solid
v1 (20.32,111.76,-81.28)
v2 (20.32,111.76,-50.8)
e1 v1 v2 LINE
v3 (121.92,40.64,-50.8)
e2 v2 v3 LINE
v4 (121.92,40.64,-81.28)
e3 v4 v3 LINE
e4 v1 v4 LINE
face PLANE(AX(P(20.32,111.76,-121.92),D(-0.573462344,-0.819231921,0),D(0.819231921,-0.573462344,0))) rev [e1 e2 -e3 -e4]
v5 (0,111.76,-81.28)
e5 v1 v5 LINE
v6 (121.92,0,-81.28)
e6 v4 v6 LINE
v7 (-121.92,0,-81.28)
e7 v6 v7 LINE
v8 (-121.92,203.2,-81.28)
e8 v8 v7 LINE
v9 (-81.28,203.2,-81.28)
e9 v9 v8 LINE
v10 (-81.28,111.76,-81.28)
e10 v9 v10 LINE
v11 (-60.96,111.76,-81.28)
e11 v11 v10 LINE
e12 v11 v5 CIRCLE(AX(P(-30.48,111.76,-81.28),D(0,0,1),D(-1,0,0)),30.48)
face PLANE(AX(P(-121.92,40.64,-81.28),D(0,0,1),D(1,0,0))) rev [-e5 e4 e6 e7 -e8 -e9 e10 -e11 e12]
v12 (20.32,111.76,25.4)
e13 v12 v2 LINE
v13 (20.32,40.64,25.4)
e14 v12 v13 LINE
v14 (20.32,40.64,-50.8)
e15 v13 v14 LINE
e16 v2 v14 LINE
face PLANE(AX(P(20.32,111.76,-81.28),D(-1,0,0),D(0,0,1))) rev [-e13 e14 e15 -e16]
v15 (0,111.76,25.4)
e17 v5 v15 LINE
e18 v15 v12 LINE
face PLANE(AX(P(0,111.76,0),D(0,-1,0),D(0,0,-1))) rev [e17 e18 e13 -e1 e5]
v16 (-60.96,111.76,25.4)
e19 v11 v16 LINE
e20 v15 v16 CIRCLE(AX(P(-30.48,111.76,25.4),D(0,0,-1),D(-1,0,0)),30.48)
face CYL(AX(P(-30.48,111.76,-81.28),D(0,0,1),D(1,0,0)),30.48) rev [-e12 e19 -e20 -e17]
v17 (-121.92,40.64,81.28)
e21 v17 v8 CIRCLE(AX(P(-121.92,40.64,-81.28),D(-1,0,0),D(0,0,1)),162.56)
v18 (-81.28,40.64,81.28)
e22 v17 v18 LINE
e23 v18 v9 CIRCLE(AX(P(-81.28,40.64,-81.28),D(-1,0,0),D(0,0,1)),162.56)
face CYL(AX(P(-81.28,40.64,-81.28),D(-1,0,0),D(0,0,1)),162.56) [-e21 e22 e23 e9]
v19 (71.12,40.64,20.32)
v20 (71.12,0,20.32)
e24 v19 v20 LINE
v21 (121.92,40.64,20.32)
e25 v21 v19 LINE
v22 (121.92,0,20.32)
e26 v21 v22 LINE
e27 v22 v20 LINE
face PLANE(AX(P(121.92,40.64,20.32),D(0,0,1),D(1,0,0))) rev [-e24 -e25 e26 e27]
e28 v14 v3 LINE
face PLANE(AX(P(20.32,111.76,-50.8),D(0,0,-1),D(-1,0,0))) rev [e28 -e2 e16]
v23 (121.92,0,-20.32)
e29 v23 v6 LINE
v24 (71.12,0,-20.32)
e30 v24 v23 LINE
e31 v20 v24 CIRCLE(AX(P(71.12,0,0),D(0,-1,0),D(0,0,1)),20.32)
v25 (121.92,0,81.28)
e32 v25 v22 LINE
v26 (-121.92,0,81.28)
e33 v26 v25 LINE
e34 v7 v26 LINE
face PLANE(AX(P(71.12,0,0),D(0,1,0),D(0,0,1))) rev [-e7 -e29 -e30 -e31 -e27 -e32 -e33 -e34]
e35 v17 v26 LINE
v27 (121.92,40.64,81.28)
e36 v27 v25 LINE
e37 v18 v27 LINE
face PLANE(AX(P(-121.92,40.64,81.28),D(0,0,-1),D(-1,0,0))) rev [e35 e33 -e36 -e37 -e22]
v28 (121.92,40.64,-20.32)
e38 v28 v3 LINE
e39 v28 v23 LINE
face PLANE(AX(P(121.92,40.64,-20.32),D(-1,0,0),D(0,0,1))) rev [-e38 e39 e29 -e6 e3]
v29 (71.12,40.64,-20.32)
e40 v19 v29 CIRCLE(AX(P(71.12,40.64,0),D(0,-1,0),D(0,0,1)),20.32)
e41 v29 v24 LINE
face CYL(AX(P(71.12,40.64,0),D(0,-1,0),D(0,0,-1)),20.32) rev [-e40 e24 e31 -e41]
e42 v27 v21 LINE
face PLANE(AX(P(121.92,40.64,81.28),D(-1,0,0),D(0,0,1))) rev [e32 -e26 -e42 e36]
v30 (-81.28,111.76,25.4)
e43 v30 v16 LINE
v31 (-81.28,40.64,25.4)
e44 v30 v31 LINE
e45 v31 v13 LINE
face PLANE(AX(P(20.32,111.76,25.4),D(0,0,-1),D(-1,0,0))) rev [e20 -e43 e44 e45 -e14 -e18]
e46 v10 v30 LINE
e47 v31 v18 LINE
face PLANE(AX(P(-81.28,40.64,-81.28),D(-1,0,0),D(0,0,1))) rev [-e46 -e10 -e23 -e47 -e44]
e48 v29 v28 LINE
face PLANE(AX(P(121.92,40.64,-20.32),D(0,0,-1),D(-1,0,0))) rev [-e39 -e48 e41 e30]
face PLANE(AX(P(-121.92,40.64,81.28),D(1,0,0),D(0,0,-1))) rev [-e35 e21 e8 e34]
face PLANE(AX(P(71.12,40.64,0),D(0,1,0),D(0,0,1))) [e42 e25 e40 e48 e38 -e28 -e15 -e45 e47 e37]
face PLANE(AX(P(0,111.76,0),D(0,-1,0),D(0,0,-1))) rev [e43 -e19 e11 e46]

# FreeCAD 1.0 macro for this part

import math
import FreeCAD as App
import Part
import Sketcher
Q = App.Units.Quantity


def add_polygon(sketch, points):
    """Adds a closed chain of lines whose ends are joined by coincident constraints."""
    first, n = sketch.GeometryCount, len(points)
    for a, b in zip(points, points[1:] + points[:1]):
        sketch.addGeometry(Part.LineSegment(App.Vector(*a, 0), App.Vector(*b, 0)), False)
    for i in range(n):
        sketch.addConstraint(Sketcher.Constraint("Coincident", first + i, 2, first + (i + 1) % n, 1))

doc = App.newDocument("Part")
params = doc.addObject("Spreadsheet::Sheet", "Params")
for row, (alias, value) in enumerate([
    ("sketch1_radius", "0.8 in"),
    ("sketch1_width", "2 in"),
    ("sketch1_width2", "9.6 in"),
    ("sketch1_height", "2.4 in"),
    ("pad1_length", "1.6 in"),
    ("sketch2_radius", "6.4 in"),
    ("pad2_length", "1.6 in"),
    ("sketch3_width", "4 in"),
    ("sketch3_height", "4.2 in"),
    ("pad3_length", "2.8 in"),
    ("sketch4_radius", "1.2 in"),
    ("sketch5_width", "4 in"),
    ("sketch5_height", "1.2 in"),
    ("pad4_length", "2.8 in"),
    ("sketch6_width", "4 in"),
    ("sketch6_height", "2.8 in"),
    ("pocket2_length", "2.8 in"),
], start=1):
    params.set(f"A{row}", alias)
    params.set(f"B{row}", "=" + value)
    params.setAlias(f"B{row}", alias)

body = doc.addObject("PartDesign::Body", "Body")

# Sketch on XZ plane
sketch1 = body.newObject("Sketcher::SketchObject", "Sketch")
sketch1.AttachmentSupport = (doc.getObject("XZ_Plane"), [""])
sketch1.MapMode = "FlatFace"
sketch1.addGeometry(Part.LineSegment(App.Vector(-122, 81, 0), App.Vector(122, 81, 0)), False)
sketch1.addGeometry(Part.LineSegment(App.Vector(122, 81, 0), App.Vector(122, 20, 0)), False)
sketch1.addGeometry(Part.LineSegment(App.Vector(122, 20, 0), App.Vector(71, 20, 0)), False)
sketch1.addGeometry(Part.ArcOfCircle(Part.Circle(App.Vector(71, 0, 0), App.Vector(0, 0, 1), 20), math.radians(90), math.radians(270)), False)
sketch1.addGeometry(Part.LineSegment(App.Vector(71, -20, 0), App.Vector(122, -20, 0)), False)
sketch1.addGeometry(Part.LineSegment(App.Vector(122, -20, 0), App.Vector(122, -81, 0)), False)
sketch1.addGeometry(Part.LineSegment(App.Vector(122, -81, 0), App.Vector(-122, -81, 0)), False)
sketch1.addGeometry(Part.LineSegment(App.Vector(-122, -81, 0), App.Vector(-122, 81, 0)), False)
sketch1.addConstraint(Sketcher.Constraint("Coincident", 0, 2, 1, 1))
sketch1.addConstraint(Sketcher.Constraint("Coincident", 1, 2, 2, 1))
sketch1.addConstraint(Sketcher.Constraint("Tangent", 2, 2, 3, 1))
sketch1.addConstraint(Sketcher.Constraint("Tangent", 3, 2, 4, 1))
sketch1.addConstraint(Sketcher.Constraint("Coincident", 4, 2, 5, 1))
sketch1.addConstraint(Sketcher.Constraint("Coincident", 5, 2, 6, 1))
sketch1.addConstraint(Sketcher.Constraint("Coincident", 6, 2, 7, 1))
sketch1.addConstraint(Sketcher.Constraint("Coincident", 7, 2, 0, 1))
sketch1.addConstraint(Sketcher.Constraint("Horizontal", 0))
sketch1.addConstraint(Sketcher.Constraint("Vertical", 1))
sketch1.addConstraint(Sketcher.Constraint("Horizontal", 2))
sketch1.addConstraint(Sketcher.Constraint("Horizontal", 4))
sketch1.addConstraint(Sketcher.Constraint("Vertical", 5))
sketch1.addConstraint(Sketcher.Constraint("Horizontal", 6))
sketch1.addConstraint(Sketcher.Constraint("Vertical", 7))
sketch1.addConstraint(Sketcher.Constraint("Symmetric", 0, 2, 6, 2, -1, 1))
sketch1.addConstraint(Sketcher.Constraint("Symmetric", 1, 2, 4, 2, -1))
sketch1.addConstraint(Sketcher.Constraint("Radius", 3, Q("0.8 in")))
sketch1.addConstraint(Sketcher.Constraint("DistanceX", 2, 2, 2, 1, Q("2 in")))
sketch1.addConstraint(Sketcher.Constraint("DistanceX", 0, 1, 0, 2, Q("9.6 in")))
sketch1.addConstraint(Sketcher.Constraint("DistanceY", 1, 2, 1, 1, Q("2.4 in")))
sketch1.setExpression("Constraints[17]", "Params.sketch1_radius")
sketch1.setExpression("Constraints[18]", "Params.sketch1_width")
sketch1.setExpression("Constraints[19]", "Params.sketch1_width2")
sketch1.setExpression("Constraints[20]", "Params.sketch1_height")
pad1 = body.newObject("PartDesign::Pad", "Pad")
pad1.Profile = sketch1
pad1.setExpression("Length", "Params.pad1_length")
pad1.Reversed = True

# Sketch on YZ plane
sketch2 = body.newObject("Sketcher::SketchObject", "Sketch001")
sketch2.AttachmentSupport = (doc.getObject("YZ_Plane"), [""])
sketch2.MapMode = "FlatFace"
sketch2.AttachmentOffset = App.Placement(App.Vector(0, 0, -4.8 * 25.4), App.Rotation())
sketch2.addGeometry(Part.LineSegment(App.Vector(203, -81, 0), App.Vector(41, -81, 0)), False)
sketch2.addGeometry(Part.LineSegment(App.Vector(41, -81, 0), App.Vector(41, 81, 0)), False)
sketch2.addGeometry(Part.ArcOfCircle(Part.Circle(App.Vector(41, -81, 0), App.Vector(0, 0, 1), 163), math.radians(0), math.radians(90)), False)
sketch2.addConstraint(Sketcher.Constraint("Coincident", 0, 2, 1, 1))
sketch2.addConstraint(Sketcher.Constraint("Coincident", 1, 2, 2, 2))
sketch2.addConstraint(Sketcher.Constraint("Coincident", 2, 1, 0, 1))
sketch2.addConstraint(Sketcher.Constraint("Horizontal", 0))
sketch2.addConstraint(Sketcher.Constraint("Vertical", 1))
sketch2.addConstraint(Sketcher.Constraint("Coincident", 0, 2, 2, 3))
sketch2.addConstraint(Sketcher.Constraint("Radius", 2, Q("6.4 in")))
sketch2.addConstraint(Sketcher.Constraint("DistanceX", -1, 1, 2, 1, Q("8 in")))
sketch2.addConstraint(Sketcher.Constraint("DistanceY", 2, 3, -1, 1, Q("3.2 in")))
sketch2.setExpression("Constraints[6]", "Params.sketch2_radius")
pad2 = body.newObject("PartDesign::Pad", "Pad001")
pad2.Profile = sketch2
pad2.setExpression("Length", "Params.pad2_length")

# Sketch on XZ plane
sketch3 = body.newObject("Sketcher::SketchObject", "Sketch002")
sketch3.AttachmentSupport = (doc.getObject("XZ_Plane"), [""])
sketch3.MapMode = "FlatFace"
sketch3.AttachmentOffset = App.Placement(App.Vector(0, 0, -1.6 * 25.4), App.Rotation())
add_polygon(sketch3, [(-81, -81), (-81, 25), (20, 25), (20, -81)])  # lines 0-3
sketch3.addConstraint(Sketcher.Constraint("Vertical", 0))
sketch3.addConstraint(Sketcher.Constraint("Horizontal", 1))
sketch3.addConstraint(Sketcher.Constraint("Vertical", 2))
sketch3.addConstraint(Sketcher.Constraint("Horizontal", 3))
sketch3.addConstraint(Sketcher.Constraint("DistanceX", 1, 1, 1, 2, Q("4 in")))
sketch3.addConstraint(Sketcher.Constraint("DistanceY", 0, 1, 0, 2, Q("4.2 in")))
sketch3.addConstraint(Sketcher.Constraint("DistanceY", -1, 1, 0, 2, Q("1 in")))
sketch3.addConstraint(Sketcher.Constraint("DistanceX", 0, 2, -1, 1, Q("3.2 in")))
sketch3.setExpression("Constraints[8]", "Params.sketch3_width")
sketch3.setExpression("Constraints[9]", "Params.sketch3_height")
pad3 = body.newObject("PartDesign::Pad", "Pad002")
pad3.Profile = sketch3
pad3.setExpression("Length", "Params.pad3_length")
pad3.Reversed = True

# Sketch on XY plane
sketch4 = body.newObject("Sketcher::SketchObject", "Sketch003")
sketch4.AttachmentSupport = (doc.getObject("XY_Plane"), [""])
sketch4.MapMode = "FlatFace"
sketch4.AttachmentOffset = App.Placement(App.Vector(0, 0, 1 * 25.4), App.Rotation())
sketch4.addGeometry(Part.LineSegment(App.Vector(0, 112, 0), App.Vector(-61, 112, 0)), False)
sketch4.addGeometry(Part.ArcOfCircle(Part.Circle(App.Vector(-30, 112, 0), App.Vector(0, 0, 1), 30), math.radians(180), math.radians(360)), False)
sketch4.addConstraint(Sketcher.Constraint("Coincident", 0, 1, 1, 2))
sketch4.addConstraint(Sketcher.Constraint("Coincident", 1, 1, 0, 2))
sketch4.addConstraint(Sketcher.Constraint("Horizontal", 0))
sketch4.addConstraint(Sketcher.Constraint("PointOnObject", 0, 1, -2))
sketch4.addConstraint(Sketcher.Constraint("Horizontal", 1, 3, 0, 1))
sketch4.addConstraint(Sketcher.Constraint("Radius", 1, Q("1.2 in")))
sketch4.addConstraint(Sketcher.Constraint("DistanceY", -1, 1, 1, 3, Q("4.4 in")))
sketch4.setExpression("Constraints[5]", "Params.sketch4_radius")
pocket1 = body.newObject("PartDesign::Pocket", "Pocket")
pocket1.Profile = sketch4
pocket1.Type = "ThroughAll"
pocket1.Midplane = True

# Sketch on XZ plane
sketch5 = body.newObject("Sketcher::SketchObject", "Sketch004")
sketch5.AttachmentSupport = (doc.getObject("XZ_Plane"), [""])
sketch5.MapMode = "FlatFace"
sketch5.AttachmentOffset = App.Placement(App.Vector(0, 0, -1.6 * 25.4), App.Rotation())
add_polygon(sketch5, [(20, -81), (20, -51), (122, -51), (122, -81)])  # lines 0-3
sketch5.addConstraint(Sketcher.Constraint("Vertical", 0))
sketch5.addConstraint(Sketcher.Constraint("Horizontal", 1))
sketch5.addConstraint(Sketcher.Constraint("Vertical", 2))
sketch5.addConstraint(Sketcher.Constraint("Horizontal", 3))
sketch5.addConstraint(Sketcher.Constraint("DistanceX", 1, 1, 1, 2, Q("4 in")))
sketch5.addConstraint(Sketcher.Constraint("DistanceY", 0, 1, 0, 2, Q("1.2 in")))
sketch5.addConstraint(Sketcher.Constraint("DistanceY", 0, 2, -1, 1, Q("2 in")))
sketch5.addConstraint(Sketcher.Constraint("DistanceX", -1, 1, 0, 2, Q("0.8 in")))
sketch5.setExpression("Constraints[8]", "Params.sketch5_width")
sketch5.setExpression("Constraints[9]", "Params.sketch5_height")
pad4 = body.newObject("PartDesign::Pad", "Pad003")
pad4.Profile = sketch5
pad4.setExpression("Length", "Params.pad4_length")
pad4.Reversed = True

# Sketch on XY plane
sketch6 = body.newObject("Sketcher::SketchObject", "Sketch005")
sketch6.AttachmentSupport = (doc.getObject("XY_Plane"), [""])
sketch6.MapMode = "FlatFace"
sketch6.AttachmentOffset = App.Placement(App.Vector(0, 0, -2 * 25.4), App.Rotation())
add_polygon(sketch6, [(20, 112), (122, 41), (122, 112)])  # lines 0-2
sketch6.addConstraint(Sketcher.Constraint("Vertical", 1))
sketch6.addConstraint(Sketcher.Constraint("Horizontal", 2))
sketch6.addConstraint(Sketcher.Constraint("DistanceX", 2, 2, 2, 1, Q("4 in")))
sketch6.addConstraint(Sketcher.Constraint("DistanceY", 1, 1, 1, 2, Q("2.8 in")))
sketch6.addConstraint(Sketcher.Constraint("DistanceX", -1, 1, 0, 2, Q("4.8 in")))
sketch6.addConstraint(Sketcher.Constraint("DistanceY", -1, 1, 0, 2, Q("1.6 in")))
sketch6.setExpression("Constraints[5]", "Params.sketch6_width")
sketch6.setExpression("Constraints[6]", "Params.sketch6_height")
pocket2 = body.newObject("PartDesign::Pocket", "Pocket001")
pocket2.Profile = sketch6
pocket2.setExpression("Length", "Params.pocket2_length")

doc.recompute()
